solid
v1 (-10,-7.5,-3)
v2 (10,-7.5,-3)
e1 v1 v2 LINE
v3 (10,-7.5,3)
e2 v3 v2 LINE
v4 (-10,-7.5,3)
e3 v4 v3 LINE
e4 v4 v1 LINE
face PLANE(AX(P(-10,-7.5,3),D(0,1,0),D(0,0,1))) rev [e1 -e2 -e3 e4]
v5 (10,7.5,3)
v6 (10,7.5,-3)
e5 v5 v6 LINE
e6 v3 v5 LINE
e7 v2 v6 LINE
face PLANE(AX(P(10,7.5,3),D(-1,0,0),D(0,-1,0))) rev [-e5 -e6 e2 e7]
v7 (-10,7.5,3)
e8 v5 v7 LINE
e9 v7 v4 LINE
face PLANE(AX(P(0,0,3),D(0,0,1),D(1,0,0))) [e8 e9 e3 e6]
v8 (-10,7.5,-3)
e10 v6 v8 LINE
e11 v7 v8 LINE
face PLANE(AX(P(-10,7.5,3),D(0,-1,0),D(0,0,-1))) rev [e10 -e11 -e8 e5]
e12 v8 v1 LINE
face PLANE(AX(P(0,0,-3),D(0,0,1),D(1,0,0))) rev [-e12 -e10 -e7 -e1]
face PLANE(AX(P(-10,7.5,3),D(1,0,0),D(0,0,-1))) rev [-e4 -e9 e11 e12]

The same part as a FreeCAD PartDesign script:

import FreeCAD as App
import Part
import Sketcher
from FreeCAD import Vector
Q = App.Units.Quantity

doc = App.newDocument("Part")
body = doc.addObject("PartDesign::Body", "Body")

# Sketch on XY plane
sketch1 = body.newObject("Sketcher::SketchObject", "Sketch")
sketch1.AttachmentSupport = (doc.getObject("XY_Plane"), [""])
sketch1.MapMode = "FlatFace"
sketch1.addGeometry([
    Part.LineSegment(Vector(-10, 7.5, 0), Vector(-10, -7.5, 0)),
    Part.LineSegment(Vector(-10, -7.5, 0), Vector(10, -7.5, 0)),
    Part.LineSegment(Vector(10, -7.5, 0), Vector(10, 7.5, 0)),
    Part.LineSegment(Vector(10, 7.5, 0), Vector(-10, 7.5, 0)),
], False)
sketch1.addConstraint([
    Sketcher.Constraint("Coincident", 0, 2, 1, 1),
    Sketcher.Constraint("Coincident", 1, 2, 2, 1),
    Sketcher.Constraint("Coincident", 2, 2, 3, 1),
    Sketcher.Constraint("Coincident", 3, 2, 0, 1),
    Sketcher.Constraint("Vertical", 0),
    Sketcher.Constraint("Horizontal", 1),
    Sketcher.Constraint("Vertical", 2),
    Sketcher.Constraint("Horizontal", 3),
    Sketcher.Constraint("Symmetric", 0, 2, 2, 2, -1, 1),
    Sketcher.Constraint("DistanceX", 1, 1, 1, 2, Q("20 mm")),
    Sketcher.Constraint("DistanceY", 0, 2, 0, 1, Q("15 mm")),
])
pad1 = body.newObject("PartDesign::Pad", "Pad")
pad1.Profile = sketch1
pad1.Length = 6
pad1.Midplane = True

doc.recompute()
